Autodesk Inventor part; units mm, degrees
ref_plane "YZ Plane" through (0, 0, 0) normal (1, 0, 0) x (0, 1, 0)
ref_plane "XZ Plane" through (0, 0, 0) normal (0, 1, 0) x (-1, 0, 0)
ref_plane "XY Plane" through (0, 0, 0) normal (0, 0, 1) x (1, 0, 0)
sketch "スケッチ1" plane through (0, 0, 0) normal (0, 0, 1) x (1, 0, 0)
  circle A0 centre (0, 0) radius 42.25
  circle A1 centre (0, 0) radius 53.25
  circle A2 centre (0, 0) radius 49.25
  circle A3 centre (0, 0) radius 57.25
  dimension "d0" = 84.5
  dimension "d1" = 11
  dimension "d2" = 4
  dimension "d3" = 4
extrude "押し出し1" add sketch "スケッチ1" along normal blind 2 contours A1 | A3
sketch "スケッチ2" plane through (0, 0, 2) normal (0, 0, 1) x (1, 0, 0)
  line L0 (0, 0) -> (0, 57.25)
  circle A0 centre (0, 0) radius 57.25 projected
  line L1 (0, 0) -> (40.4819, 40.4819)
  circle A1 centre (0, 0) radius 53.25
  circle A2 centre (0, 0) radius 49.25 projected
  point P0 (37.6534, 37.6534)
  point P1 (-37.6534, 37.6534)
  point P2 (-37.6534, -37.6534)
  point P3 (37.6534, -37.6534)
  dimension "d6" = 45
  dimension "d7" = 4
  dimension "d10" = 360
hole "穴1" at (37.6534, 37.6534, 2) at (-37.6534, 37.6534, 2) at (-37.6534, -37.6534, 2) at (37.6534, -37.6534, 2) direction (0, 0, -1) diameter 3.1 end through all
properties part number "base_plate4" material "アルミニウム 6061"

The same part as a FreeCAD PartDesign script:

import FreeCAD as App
import Part
import Sketcher
from FreeCAD import Vector
Q = App.Units.Quantity

doc = App.newDocument("Part")
body = doc.addObject("PartDesign::Body", "Body")

sketch1 = body.newObject("Sketcher::SketchObject", "Sketch")
sketch1.AttachmentSupport = (doc.getObject("XY_Plane"), [""])
sketch1.MapMode = "FlatFace"
sketch1.addGeometry(Part.Circle(Vector(0, 0, 0), Vector(0, 0, 1), 57), False)
sketch1.addGeometry(Part.Circle(Vector(0, 0, 0), Vector(0, 0, 1), 49), False)
sketch1.addConstraint(Sketcher.Constraint("Coincident", 0, 3, -1, 1))
sketch1.addConstraint(Sketcher.Constraint("Coincident", 1, 3, -1, 1))
sketch1.addConstraint(Sketcher.Constraint("Diameter", 0, Q("114.5 mm")))
sketch1.addConstraint(Sketcher.Constraint("Diameter", 1, Q("98.5 mm")))
pad1 = body.newObject("PartDesign::Pad", "Pad")
pad1.Profile = sketch1
pad1.Length = 2

sketch2 = body.newObject("Sketcher::SketchObject", "Sketch001")
sketch2.AttachmentSupport = (doc.getObject("XY_Plane"), [""])
sketch2.MapMode = "FlatFace"
sketch2.AttachmentOffset = App.Placement(Vector(0, 0, 2), App.Rotation())
sketch2.addGeometry(Part.Circle(Vector(37.7, 37.7, 0), Vector(0, 0, 1), 1.6), False)
sketch2.addGeometry(Part.Circle(Vector(-37.7, 37.7, 0), Vector(0, 0, 1), 1.6), False)
sketch2.addGeometry(Part.Circle(Vector(-37.7, -37.7, 0), Vector(0, 0, 1), 1.6), False)
sketch2.addGeometry(Part.Circle(Vector(37.7, -37.7, 0), Vector(0, 0, 1), 1.6), False)
sketch2.addConstraint(Sketcher.Constraint("Equal", 0, 1))
sketch2.addConstraint(Sketcher.Constraint("Equal", 1, 2))
sketch2.addConstraint(Sketcher.Constraint("Equal", 2, 3))
sketch2.addConstraint(Sketcher.Constraint("Symmetric", 0, 3, 2, 3, -1, 1))
sketch2.addConstraint(Sketcher.Constraint("Symmetric", 1, 3, 3, 3, -1, 1))
sketch2.addConstraint(Sketcher.Constraint("Symmetric", 0, 3, 1, 3, -2))
sketch2.addConstraint(Sketcher.Constraint("Diameter", 0, Q("3.1 mm")))
sketch2.addConstraint(Sketcher.Constraint("DistanceX", -1, 1, 0, 3, Q("37.6534 mm")))
sketch2.addConstraint(Sketcher.Constraint("DistanceY", -1, 1, 0, 3, Q("37.6534 mm")))
doc.recompute()
hole = body.newObject("PartDesign::Hole", "Hole")
hole.Profile = sketch2
hole.ThreadType = "None"
hole.Diameter = 3.1
hole.DepthType = "ThroughAll"

doc.recompute()
